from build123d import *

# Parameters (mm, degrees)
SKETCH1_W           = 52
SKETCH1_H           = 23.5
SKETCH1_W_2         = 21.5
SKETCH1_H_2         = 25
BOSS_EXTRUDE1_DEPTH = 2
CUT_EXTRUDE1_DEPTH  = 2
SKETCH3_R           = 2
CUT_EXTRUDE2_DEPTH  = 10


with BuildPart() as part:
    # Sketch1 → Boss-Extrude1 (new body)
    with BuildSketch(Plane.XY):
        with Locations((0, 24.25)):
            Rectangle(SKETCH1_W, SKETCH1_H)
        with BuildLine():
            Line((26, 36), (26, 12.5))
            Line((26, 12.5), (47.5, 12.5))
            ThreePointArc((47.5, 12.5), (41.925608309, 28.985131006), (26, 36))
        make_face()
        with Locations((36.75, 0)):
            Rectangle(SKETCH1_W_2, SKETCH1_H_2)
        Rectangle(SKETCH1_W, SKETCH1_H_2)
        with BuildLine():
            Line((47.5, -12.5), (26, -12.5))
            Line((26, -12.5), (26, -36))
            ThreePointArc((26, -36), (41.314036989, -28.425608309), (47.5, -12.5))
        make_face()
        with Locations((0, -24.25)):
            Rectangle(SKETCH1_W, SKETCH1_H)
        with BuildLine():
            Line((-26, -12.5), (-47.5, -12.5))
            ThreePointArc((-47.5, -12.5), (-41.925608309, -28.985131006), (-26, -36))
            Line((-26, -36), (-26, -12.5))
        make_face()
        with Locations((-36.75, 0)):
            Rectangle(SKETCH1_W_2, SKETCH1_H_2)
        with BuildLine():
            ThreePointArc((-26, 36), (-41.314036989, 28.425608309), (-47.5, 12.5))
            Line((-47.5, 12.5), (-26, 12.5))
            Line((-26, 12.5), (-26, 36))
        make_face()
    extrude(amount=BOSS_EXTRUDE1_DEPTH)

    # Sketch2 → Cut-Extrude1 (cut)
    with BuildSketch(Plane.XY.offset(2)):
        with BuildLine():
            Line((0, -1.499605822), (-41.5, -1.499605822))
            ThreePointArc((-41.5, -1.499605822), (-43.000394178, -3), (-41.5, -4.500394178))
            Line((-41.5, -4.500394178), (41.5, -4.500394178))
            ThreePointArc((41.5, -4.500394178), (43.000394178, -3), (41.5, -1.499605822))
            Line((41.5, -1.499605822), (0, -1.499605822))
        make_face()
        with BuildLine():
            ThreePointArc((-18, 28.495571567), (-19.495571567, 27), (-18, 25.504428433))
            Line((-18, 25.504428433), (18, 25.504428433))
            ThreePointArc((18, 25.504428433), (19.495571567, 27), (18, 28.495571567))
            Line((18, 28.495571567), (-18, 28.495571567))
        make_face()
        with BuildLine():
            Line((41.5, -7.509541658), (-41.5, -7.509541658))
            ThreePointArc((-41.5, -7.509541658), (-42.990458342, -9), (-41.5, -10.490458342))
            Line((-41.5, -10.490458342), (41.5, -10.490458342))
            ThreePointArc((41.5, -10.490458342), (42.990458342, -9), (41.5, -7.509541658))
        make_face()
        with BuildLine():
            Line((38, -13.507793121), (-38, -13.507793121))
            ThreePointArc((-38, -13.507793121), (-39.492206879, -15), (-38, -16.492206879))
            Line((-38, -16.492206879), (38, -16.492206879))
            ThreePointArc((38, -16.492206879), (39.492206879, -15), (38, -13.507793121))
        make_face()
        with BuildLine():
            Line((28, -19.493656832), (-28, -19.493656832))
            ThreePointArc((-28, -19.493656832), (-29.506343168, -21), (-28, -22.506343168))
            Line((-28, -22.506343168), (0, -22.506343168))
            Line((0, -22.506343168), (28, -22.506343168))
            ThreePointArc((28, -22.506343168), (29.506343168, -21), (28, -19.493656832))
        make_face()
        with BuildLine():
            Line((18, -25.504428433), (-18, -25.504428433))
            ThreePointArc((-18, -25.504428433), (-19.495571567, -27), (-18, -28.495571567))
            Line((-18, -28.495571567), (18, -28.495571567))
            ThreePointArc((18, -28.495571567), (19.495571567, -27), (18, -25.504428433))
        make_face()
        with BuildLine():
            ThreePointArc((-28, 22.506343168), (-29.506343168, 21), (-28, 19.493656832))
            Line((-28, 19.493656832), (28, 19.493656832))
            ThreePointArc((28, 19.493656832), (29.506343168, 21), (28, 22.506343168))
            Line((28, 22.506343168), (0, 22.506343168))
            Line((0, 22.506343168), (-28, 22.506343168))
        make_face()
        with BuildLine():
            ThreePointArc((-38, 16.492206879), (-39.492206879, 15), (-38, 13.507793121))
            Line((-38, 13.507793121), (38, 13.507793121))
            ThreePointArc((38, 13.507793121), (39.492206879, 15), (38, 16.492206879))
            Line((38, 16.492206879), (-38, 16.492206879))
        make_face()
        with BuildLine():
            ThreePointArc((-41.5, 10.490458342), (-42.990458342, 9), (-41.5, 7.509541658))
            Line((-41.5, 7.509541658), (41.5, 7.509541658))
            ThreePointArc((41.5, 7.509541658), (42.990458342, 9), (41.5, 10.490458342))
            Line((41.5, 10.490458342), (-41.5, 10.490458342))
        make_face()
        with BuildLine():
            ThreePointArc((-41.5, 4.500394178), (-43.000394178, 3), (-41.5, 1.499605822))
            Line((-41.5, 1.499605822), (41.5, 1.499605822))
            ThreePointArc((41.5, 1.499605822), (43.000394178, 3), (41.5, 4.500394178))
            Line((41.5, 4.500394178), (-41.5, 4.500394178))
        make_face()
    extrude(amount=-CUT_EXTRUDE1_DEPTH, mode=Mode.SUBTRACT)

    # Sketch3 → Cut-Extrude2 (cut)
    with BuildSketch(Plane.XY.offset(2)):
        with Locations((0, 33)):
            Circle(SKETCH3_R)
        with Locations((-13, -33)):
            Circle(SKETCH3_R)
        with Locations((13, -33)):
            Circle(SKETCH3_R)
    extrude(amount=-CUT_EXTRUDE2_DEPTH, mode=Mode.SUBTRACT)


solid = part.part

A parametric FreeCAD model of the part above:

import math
import FreeCAD as App
import Part
import Sketcher

V = App.Vector
Q = App.Units.Quantity

doc = App.newDocument("Part")
params = doc.addObject("Spreadsheet::Sheet", "Params")
for row, (alias, value) in enumerate([
    ("sketch1_width", "52 mm"),
    ("sketch1_height", "25 mm"),
    ("pad1_length", "2 mm"),
    ("sketch2_width", "83 mm"),
    ("sketch2_width2", "36 mm"),
    ("sketch2_width3", "76 mm"),
    ("sketch2_width4", "56 mm"),
    ("pocket1_length", "2 mm"),
    ("sketch3_diameter", "4 mm"),
    ("pocket2_length", "10 mm"),
], start=1):
    params.set(f"A{row}", alias)
    params.set(f"B{row}", "=" + value)
    params.setAlias(f"B{row}", alias)

body = doc.addObject("PartDesign::Body", "Body")

sketch1 = body.newObject("Sketcher::SketchObject", "Sketch")
sketch1.AttachmentSupport = (doc.getObject("XY_Plane"), [""])
sketch1.MapMode = "FlatFace"
sketch1.addGeometry([
    Part.LineSegment(V(-48, 12, 0), V(-48, -12, 0)),
    Part.ArcOfCircle(Part.Circle(V(-26, -14, 0), V(0, 0, 1), 22), math.radians(175), math.radians(270)),
    Part.LineSegment(V(-26, -36, 0), V(26, -36, 0)),
    Part.ArcOfCircle(Part.Circle(V(24, -13, 0), V(0, 0, 1), 24), math.radians(-85), math.radians(0)),
    Part.LineSegment(V(48, -12, 0), V(48, 12, 0)),
    Part.ArcOfCircle(Part.Circle(V(26, 14, 0), V(0, 0, 1), 22), math.radians(-5), math.radians(90)),
    Part.LineSegment(V(26, 36, 0), V(-26, 36, 0)),
    Part.ArcOfCircle(Part.Circle(V(-24, 13, 0), V(0, 0, 1), 24), math.radians(95), math.radians(180)),
], False)
sketch1.addConstraint([
    Sketcher.Constraint("Coincident", 0, 2, 1, 1),
    Sketcher.Constraint("Tangent", 1, 2, 2, 1),
    Sketcher.Constraint("Coincident", 2, 2, 3, 1),
    Sketcher.Constraint("Tangent", 3, 2, 4, 1),
    Sketcher.Constraint("Coincident", 4, 2, 5, 1),
    Sketcher.Constraint("Tangent", 5, 2, 6, 1),
    Sketcher.Constraint("Coincident", 6, 2, 7, 1),
    Sketcher.Constraint("Tangent", 7, 2, 0, 1),
    Sketcher.Constraint("Vertical", 0),
    Sketcher.Constraint("Horizontal", 2),
    Sketcher.Constraint("Vertical", 4),
    Sketcher.Constraint("Horizontal", 6),
    Sketcher.Constraint("Equal", 1, 5),
    Sketcher.Constraint("Equal", 3, 7),
    Sketcher.Constraint("Symmetric", 1, 3, 5, 3, -1, 1),
    Sketcher.Constraint("Symmetric", 3, 3, 7, 3, -1, 1),
    Sketcher.Constraint("Horizontal", 3, 3, 0, 2),
    Sketcher.Constraint("Vertical", 5, 3, 2, 2),
    Sketcher.Constraint("DistanceX", 2, 1, 2, 2, Q("52 mm")),
    Sketcher.Constraint("DistanceY", 0, 2, 0, 1, Q("25 mm")),
    Sketcher.Constraint("DistanceY", 1, 2, -1, 1, Q("36 mm")),
    Sketcher.Constraint("DistanceX", 0, 2, -1, 1, Q("47.5 mm")),
])
sketch1.setExpression("Constraints[18]", "Params.sketch1_width")
sketch1.setExpression("Constraints[19]", "Params.sketch1_height")
pad1 = body.newObject("PartDesign::Pad", "Pad")
pad1.Profile = sketch1
pad1.setExpression("Length", "Params.pad1_length")

sketch2 = body.newObject("Sketcher::SketchObject", "Sketch001")
sketch2.AttachmentSupport = (doc.getObject("XY_Plane"), [""])
sketch2.MapMode = "FlatFace"
sketch2.AttachmentOffset = App.Placement(V(0, 0, 2), App.Rotation())
sketch2.addGeometry([
    Part.ArcOfCircle(Part.Circle(V(-41.5, -3, 0), V(0, 0, 1), 1.5), math.radians(90), math.radians(270)),
    Part.LineSegment(V(-41.5, -4.5, 0), V(41.5, -4.5, 0)),
    Part.ArcOfCircle(Part.Circle(V(41.5, -3, 0), V(0, 0, 1), 1.5), math.radians(-90), math.radians(90)),
    Part.LineSegment(V(41.5, -1.5, 0), V(-41.5, -1.5, 0)),
    Part.ArcOfCircle(Part.Circle(V(-18, 27, 0), V(0, 0, 1), 1.5), math.radians(90), math.radians(270)),
    Part.LineSegment(V(-18, 25.5, 0), V(18, 25.5, 0)),
    Part.ArcOfCircle(Part.Circle(V(18, 27, 0), V(0, 0, 1), 1.5), math.radians(-90), math.radians(90)),
    Part.LineSegment(V(18, 28.5, 0), V(-18, 28.5, 0)),
    Part.LineSegment(V(41.5, -7.5, 0), V(-41.5, -7.5, 0)),
    Part.ArcOfCircle(Part.Circle(V(-41.5, -9, 0), V(0, 0, 1), 1.5), math.radians(90), math.radians(270)),
    Part.LineSegment(V(-41.5, -10.5, 0), V(41.5, -10.5, 0)),
    Part.ArcOfCircle(Part.Circle(V(41.5, -9, 0), V(0, 0, 1), 1.5), math.radians(-90), math.radians(90)),
    Part.LineSegment(V(38, -13.5, 0), V(-38, -13.5, 0)),
    Part.ArcOfCircle(Part.Circle(V(-38, -15, 0), V(0, 0, 1), 1.5), math.radians(90), math.radians(270)),
    Part.LineSegment(V(-38, -16.5, 0), V(38, -16.5, 0)),
    Part.ArcOfCircle(Part.Circle(V(38, -15, 0), V(0, 0, 1), 1.5), math.radians(-90), math.radians(90)),
    Part.LineSegment(V(28, -19.5, 0), V(-28, -19.5, 0)),
    Part.ArcOfCircle(Part.Circle(V(-28, -21, 0), V(0, 0, 1), 1.5), math.radians(90), math.radians(270)),
    Part.LineSegment(V(-28, -22.5, 0), V(28, -22.5, 0)),
    Part.ArcOfCircle(Part.Circle(V(28, -21, 0), V(0, 0, 1), 1.5), math.radians(-90), math.radians(90)),
    Part.LineSegment(V(18, -25.5, 0), V(-18, -25.5, 0)),
    Part.ArcOfCircle(Part.Circle(V(-18, -27, 0), V(0, 0, 1), 1.5), math.radians(90), math.radians(270)),
    Part.LineSegment(V(-18, -28.5, 0), V(18, -28.5, 0)),
    Part.ArcOfCircle(Part.Circle(V(18, -27, 0), V(0, 0, 1), 1.5), math.radians(-90), math.radians(90)),
    Part.ArcOfCircle(Part.Circle(V(-28, 21, 0), V(0, 0, 1), 1.5), math.radians(90), math.radians(270)),
    Part.LineSegment(V(-28, 19.5, 0), V(28, 19.5, 0)),
    Part.ArcOfCircle(Part.Circle(V(28, 21, 0), V(0, 0, 1), 1.5), math.radians(-90), math.radians(90)),
    Part.LineSegment(V(28, 22.5, 0), V(-28, 22.5, 0)),
    Part.ArcOfCircle(Part.Circle(V(-38, 15, 0), V(0, 0, 1), 1.5), math.radians(90), math.radians(270)),
    Part.LineSegment(V(-38, 13.5, 0), V(38, 13.5, 0)),
    Part.ArcOfCircle(Part.Circle(V(38, 15, 0), V(0, 0, 1), 1.5), math.radians(-90), math.radians(90)),
    Part.LineSegment(V(38, 16.5, 0), V(-38, 16.5, 0)),
    Part.ArcOfCircle(Part.Circle(V(-41.5, 9, 0), V(0, 0, 1), 1.5), math.radians(90), math.radians(270)),
    Part.LineSegment(V(-41.5, 7.5, 0), V(41.5, 7.5, 0)),
    Part.ArcOfCircle(Part.Circle(V(41.5, 9, 0), V(0, 0, 1), 1.5), math.radians(-90), math.radians(90)),
    Part.LineSegment(V(41.5, 10.5, 0), V(-41.5, 10.5, 0)),
    Part.ArcOfCircle(Part.Circle(V(-41.5, 3, 0), V(0, 0, 1), 1.5), math.radians(90), math.radians(270)),
    Part.LineSegment(V(-41.5, 1.5, 0), V(41.5, 1.5, 0)),
    Part.ArcOfCircle(Part.Circle(V(41.5, 3, 0), V(0, 0, 1), 1.5), math.radians(-90), math.radians(90)),
    Part.LineSegment(V(41.5, 4.5, 0), V(-41.5, 4.5, 0)),
], False)
sketch2.addConstraint([
    Sketcher.Constraint("Tangent", 0, 2, 1, 1),
    Sketcher.Constraint("Tangent", 1, 2, 2, 1),
    Sketcher.Constraint("Tangent", 2, 2, 3, 1),
    Sketcher.Constraint("Tangent", 3, 2, 0, 1),
    Sketcher.Constraint("Tangent", 4, 2, 5, 1),
    Sketcher.Constraint("Tangent", 5, 2, 6, 1),
    Sketcher.Constraint("Tangent", 6, 2, 7, 1),
    Sketcher.Constraint("Tangent", 7, 2, 4, 1),
    Sketcher.Constraint("Tangent", 8, 2, 9, 1),
    Sketcher.Constraint("Tangent", 9, 2, 10, 1),
    Sketcher.Constraint("Tangent", 10, 2, 11, 1),
    Sketcher.Constraint("Tangent", 11, 2, 8, 1),
    Sketcher.Constraint("Tangent", 12, 2, 13, 1),
    Sketcher.Constraint("Tangent", 13, 2, 14, 1),
    Sketcher.Constraint("Tangent", 14, 2, 15, 1),
    Sketcher.Constraint("Tangent", 15, 2, 12, 1),
    Sketcher.Constraint("Tangent", 16, 2, 17, 1),
    Sketcher.Constraint("Tangent", 17, 2, 18, 1),
    Sketcher.Constraint("Tangent", 18, 2, 19, 1),
    Sketcher.Constraint("Tangent", 19, 2, 16, 1),
    Sketcher.Constraint("Tangent", 20, 2, 21, 1),
    Sketcher.Constraint("Tangent", 21, 2, 22, 1),
    Sketcher.Constraint("Tangent", 22, 2, 23, 1),
    Sketcher.Constraint("Tangent", 23, 2, 20, 1),
    Sketcher.Constraint("Tangent", 24, 2, 25, 1),
    Sketcher.Constraint("Tangent", 25, 2, 26, 1),
    Sketcher.Constraint("Tangent", 26, 2, 27, 1),
    Sketcher.Constraint("Tangent", 27, 2, 24, 1),
    Sketcher.Constraint("Tangent", 28, 2, 29, 1),
    Sketcher.Constraint("Tangent", 29, 2, 30, 1),
    Sketcher.Constraint("Tangent", 30, 2, 31, 1),
    Sketcher.Constraint("Tangent", 31, 2, 28, 1),
    Sketcher.Constraint("Tangent", 32, 2, 33, 1),
    Sketcher.Constraint("Tangent", 33, 2, 34, 1),
    Sketcher.Constraint("Tangent", 34, 2, 35, 1),
    Sketcher.Constraint("Tangent", 35, 2, 32, 1),
    Sketcher.Constraint("Tangent", 36, 2, 37, 1),
    Sketcher.Constraint("Tangent", 37, 2, 38, 1),
    Sketcher.Constraint("Tangent", 38, 2, 39, 1),
    Sketcher.Constraint("Tangent", 39, 2, 36, 1),
    Sketcher.Constraint("Horizontal", 1),
    Sketcher.Constraint("Horizontal", 3),
    Sketcher.Constraint("Horizontal", 5),
    Sketcher.Constraint("Horizontal", 7),
    Sketcher.Constraint("Horizontal", 8),
    Sketcher.Constraint("Horizontal", 10),
    Sketcher.Constraint("Horizontal", 12),
    Sketcher.Constraint("Horizontal", 14),
    Sketcher.Constraint("Horizontal", 16),
    Sketcher.Constraint("Horizontal", 18),
    Sketcher.Constraint("Horizontal", 20),
    Sketcher.Constraint("Horizontal", 22),
    Sketcher.Constraint("Horizontal", 25),
    Sketcher.Constraint("Horizontal", 27),
    Sketcher.Constraint("Horizontal", 29),
    Sketcher.Constraint("Horizontal", 31),
    Sketcher.Constraint("Horizontal", 33),
    Sketcher.Constraint("Horizontal", 35),
    Sketcher.Constraint("Horizontal", 37),
    Sketcher.Constraint("Horizontal", 39),
    Sketcher.Constraint("Equal", 6, 21),
    Sketcher.Constraint("Equal", 19, 24),
    Sketcher.Constraint("Equal", 15, 28),
    Sketcher.Constraint("Equal", 11, 32),
    Sketcher.Constraint("Equal", 2, 36),
    Sketcher.Constraint("Symmetric", 6, 3, 21, 3, -1, 1),
    Sketcher.Constraint("Symmetric", 19, 3, 24, 3, -1, 1),
    Sketcher.Constraint("Symmetric", 15, 3, 28, 3, -1, 1),
    Sketcher.Constraint("Symmetric", 11, 3, 32, 3, -1, 1),
    Sketcher.Constraint("Symmetric", 2, 3, 36, 3, -1, 1),
    Sketcher.Constraint("Vertical", 0, 3, 9, 3),
    Sketcher.Constraint("Vertical", 2, 3, 11, 3),
    Sketcher.Constraint("Vertical", 4, 3, 21, 3),
    Sketcher.Constraint("Vertical", 6, 3, 23, 3),
    Sketcher.Constraint("Vertical", 17, 3, 24, 3),
    Sketcher.Constraint("Vertical", 19, 3, 26, 3),
    Sketcher.Constraint("Vertical", 13, 3, 28, 3),
    Sketcher.Constraint("Vertical", 15, 3, 30, 3),
    Sketcher.Constraint("Vertical", 9, 3, 32, 3),
    Sketcher.Constraint("Vertical", 11, 3, 34, 3),
    Sketcher.Constraint("Vertical", 34, 3, 38, 3),
    Sketcher.Constraint("DistanceX", 1, 1, 1, 2, Q("83 mm")),
    Sketcher.Constraint("DistanceX", 5, 1, 5, 2, Q("36 mm")),
    Sketcher.Constraint("DistanceX", 12, 2, 12, 1, Q("76 mm")),
    Sketcher.Constraint("DistanceX", 16, 2, 16, 1, Q("56 mm")),
    Sketcher.Constraint("DistanceY", 0, 3, -1, 1, Q("3 mm")),
    Sketcher.Constraint("DistanceY", -1, 1, 4, 3, Q("27 mm")),
    Sketcher.Constraint("DistanceY", 9, 3, -1, 1, Q("9 mm")),
    Sketcher.Constraint("DistanceY", 13, 3, -1, 1, Q("15 mm")),
    Sketcher.Constraint("DistanceY", 17, 3, -1, 1, Q("21 mm")),
    Sketcher.Constraint("Radius", 4, Q("1.495572 mm")),
    Sketcher.Constraint("Radius", 9, Q("1.490458 mm")),
    Sketcher.Constraint("Radius", 0, Q("1.500394 mm")),
    Sketcher.Constraint("Radius", 13, Q("1.492207 mm")),
    Sketcher.Constraint("Radius", 17, Q("1.506343 mm")),
])
sketch2.setExpression("Constraints[81]", "Params.sketch2_width")
sketch2.setExpression("Constraints[82]", "Params.sketch2_width2")
sketch2.setExpression("Constraints[83]", "Params.sketch2_width3")
sketch2.setExpression("Constraints[84]", "Params.sketch2_width4")
pocket1 = body.newObject("PartDesign::Pocket", "Pocket")
pocket1.Profile = sketch2
pocket1.setExpression("Length", "Params.pocket1_length")

sketch3 = body.newObject("Sketcher::SketchObject", "Sketch002")
sketch3.AttachmentSupport = (doc.getObject("XY_Plane"), [""])
sketch3.MapMode = "FlatFace"
sketch3.AttachmentOffset = App.Placement(V(0, 0, 2), App.Rotation())
sketch3.addGeometry([
    Part.Circle(V(0, 33, 0), V(0, 0, 1), 2),
    Part.Circle(V(-13, -33, 0), V(0, 0, 1), 2),
    Part.Circle(V(13, -33, 0), V(0, 0, 1), 2),
], False)
sketch3.addConstraint([
    Sketcher.Constraint("Equal", 0, 1),
    Sketcher.Constraint("Equal", 1, 2),
    Sketcher.Constraint("Symmetric", 1, 3, 2, 3, -2),
    Sketcher.Constraint("PointOnObject", 0, 3, -2),
    Sketcher.Constraint("Diameter", 0, Q("4 mm")),
    Sketcher.Constraint("DistanceY", -1, 1, 0, 3, Q("33 mm")),
    Sketcher.Constraint("DistanceX", 1, 3, -1, 1, Q("13 mm")),
    Sketcher.Constraint("DistanceY", 1, 3, -1, 1, Q("33 mm")),
])
sketch3.setExpression("Constraints[4]", "Params.sketch3_diameter")
pocket2 = body.newObject("PartDesign::Pocket", "Pocket001")
pocket2.Profile = sketch3
pocket2.setExpression("Length", "Params.pocket2_length")

doc.recompute()
